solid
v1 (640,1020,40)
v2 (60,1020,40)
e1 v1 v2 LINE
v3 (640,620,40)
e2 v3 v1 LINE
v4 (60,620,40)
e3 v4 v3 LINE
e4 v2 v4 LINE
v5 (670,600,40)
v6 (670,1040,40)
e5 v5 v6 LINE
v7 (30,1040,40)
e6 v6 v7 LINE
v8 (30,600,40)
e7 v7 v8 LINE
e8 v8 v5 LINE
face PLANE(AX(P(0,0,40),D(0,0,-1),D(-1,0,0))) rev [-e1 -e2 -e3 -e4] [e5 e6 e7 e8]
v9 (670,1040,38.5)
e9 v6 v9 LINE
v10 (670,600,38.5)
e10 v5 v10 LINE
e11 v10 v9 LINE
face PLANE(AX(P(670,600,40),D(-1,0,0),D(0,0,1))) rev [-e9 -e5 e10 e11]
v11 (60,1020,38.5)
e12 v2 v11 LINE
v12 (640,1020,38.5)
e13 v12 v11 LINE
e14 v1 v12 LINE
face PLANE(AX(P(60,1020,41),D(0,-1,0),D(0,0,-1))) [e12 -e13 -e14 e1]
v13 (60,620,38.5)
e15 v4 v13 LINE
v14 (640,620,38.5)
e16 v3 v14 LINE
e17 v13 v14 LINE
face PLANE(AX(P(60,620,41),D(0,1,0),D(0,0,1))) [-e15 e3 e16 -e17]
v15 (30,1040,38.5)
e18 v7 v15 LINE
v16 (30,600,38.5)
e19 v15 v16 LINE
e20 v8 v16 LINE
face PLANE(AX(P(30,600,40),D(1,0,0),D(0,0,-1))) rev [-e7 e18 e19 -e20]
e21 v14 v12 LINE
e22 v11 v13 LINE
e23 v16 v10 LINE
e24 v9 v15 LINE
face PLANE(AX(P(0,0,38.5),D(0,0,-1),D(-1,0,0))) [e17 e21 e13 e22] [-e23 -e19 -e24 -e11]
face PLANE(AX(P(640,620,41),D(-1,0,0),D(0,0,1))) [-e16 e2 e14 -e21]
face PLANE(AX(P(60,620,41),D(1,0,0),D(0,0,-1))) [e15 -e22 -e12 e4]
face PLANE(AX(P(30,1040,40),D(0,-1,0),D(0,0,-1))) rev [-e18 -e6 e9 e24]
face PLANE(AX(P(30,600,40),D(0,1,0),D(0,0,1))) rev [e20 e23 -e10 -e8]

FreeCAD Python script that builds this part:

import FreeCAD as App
import Part
import Sketcher


def add_polygon(sketch, points):
    """Adds a closed chain of lines whose ends are joined by coincident constraints."""
    first, n = sketch.GeometryCount, len(points)
    for a, b in zip(points, points[1:] + points[:1]):
        sketch.addGeometry(Part.LineSegment(App.Vector(*a, 0), App.Vector(*b, 0)), False)
    for i in range(n):
        sketch.addConstraint(Sketcher.Constraint("Coincident", first + i, 2, first + (i + 1) % n, 1))

doc = App.newDocument("Part")
body = doc.addObject("PartDesign::Body", "Body")

sketch1 = body.newObject("Sketcher::SketchObject", "Sketch")
sketch1.AttachmentSupport = (doc.getObject("XY_Plane"), [""])
sketch1.MapMode = "FlatFace"
sketch1.AttachmentOffset = App.Placement(App.Vector(0, 0, 38.5), App.Rotation())
add_polygon(sketch1, [(30, 1040), (30, 600), (670, 600), (670, 1040)])
sketch1.addConstraint([
    Sketcher.Constraint("Vertical", 0),
    Sketcher.Constraint("Horizontal", 1),
    Sketcher.Constraint("Vertical", 2),
    Sketcher.Constraint("Horizontal", 3),
    Sketcher.Constraint("DistanceX", 1, 1, 1, 2, 640.0),
    Sketcher.Constraint("DistanceY", 0, 2, 0, 1, 440.0),
    Sketcher.Constraint("DistanceX", -1, 1, 0, 2, 30.0),
    Sketcher.Constraint("DistanceY", -1, 1, 0, 2, 600.0),
])
pad1 = body.newObject("PartDesign::Pad", "Pad")
pad1.Profile = sketch1
pad1.Length = 1.5

sketch2 = body.newObject("Sketcher::SketchObject", "Sketch001")
sketch2.AttachmentSupport = (doc.getObject("XY_Plane"), [""])
sketch2.MapMode = "FlatFace"
sketch2.AttachmentOffset = App.Placement(App.Vector(0, 0, 37.5), App.Rotation())
add_polygon(sketch2, [(60, 1020), (60, 620), (640, 620), (640, 1020)])
sketch2.addConstraint([
    Sketcher.Constraint("Vertical", 0),
    Sketcher.Constraint("Horizontal", 1),
    Sketcher.Constraint("Vertical", 2),
    Sketcher.Constraint("Horizontal", 3),
    Sketcher.Constraint("DistanceX", 1, 1, 1, 2, 580.0),
    Sketcher.Constraint("DistanceY", 0, 2, 0, 1, 400.0),
    Sketcher.Constraint("DistanceX", -1, 1, 0, 2, 60.0),
    Sketcher.Constraint("DistanceY", -1, 1, 0, 2, 620.0),
])
pocket1 = body.newObject("PartDesign::Pocket", "Pocket")
pocket1.Profile = sketch2
pocket1.Length = 3.5
pocket1.Reversed = True

doc.recompute()
